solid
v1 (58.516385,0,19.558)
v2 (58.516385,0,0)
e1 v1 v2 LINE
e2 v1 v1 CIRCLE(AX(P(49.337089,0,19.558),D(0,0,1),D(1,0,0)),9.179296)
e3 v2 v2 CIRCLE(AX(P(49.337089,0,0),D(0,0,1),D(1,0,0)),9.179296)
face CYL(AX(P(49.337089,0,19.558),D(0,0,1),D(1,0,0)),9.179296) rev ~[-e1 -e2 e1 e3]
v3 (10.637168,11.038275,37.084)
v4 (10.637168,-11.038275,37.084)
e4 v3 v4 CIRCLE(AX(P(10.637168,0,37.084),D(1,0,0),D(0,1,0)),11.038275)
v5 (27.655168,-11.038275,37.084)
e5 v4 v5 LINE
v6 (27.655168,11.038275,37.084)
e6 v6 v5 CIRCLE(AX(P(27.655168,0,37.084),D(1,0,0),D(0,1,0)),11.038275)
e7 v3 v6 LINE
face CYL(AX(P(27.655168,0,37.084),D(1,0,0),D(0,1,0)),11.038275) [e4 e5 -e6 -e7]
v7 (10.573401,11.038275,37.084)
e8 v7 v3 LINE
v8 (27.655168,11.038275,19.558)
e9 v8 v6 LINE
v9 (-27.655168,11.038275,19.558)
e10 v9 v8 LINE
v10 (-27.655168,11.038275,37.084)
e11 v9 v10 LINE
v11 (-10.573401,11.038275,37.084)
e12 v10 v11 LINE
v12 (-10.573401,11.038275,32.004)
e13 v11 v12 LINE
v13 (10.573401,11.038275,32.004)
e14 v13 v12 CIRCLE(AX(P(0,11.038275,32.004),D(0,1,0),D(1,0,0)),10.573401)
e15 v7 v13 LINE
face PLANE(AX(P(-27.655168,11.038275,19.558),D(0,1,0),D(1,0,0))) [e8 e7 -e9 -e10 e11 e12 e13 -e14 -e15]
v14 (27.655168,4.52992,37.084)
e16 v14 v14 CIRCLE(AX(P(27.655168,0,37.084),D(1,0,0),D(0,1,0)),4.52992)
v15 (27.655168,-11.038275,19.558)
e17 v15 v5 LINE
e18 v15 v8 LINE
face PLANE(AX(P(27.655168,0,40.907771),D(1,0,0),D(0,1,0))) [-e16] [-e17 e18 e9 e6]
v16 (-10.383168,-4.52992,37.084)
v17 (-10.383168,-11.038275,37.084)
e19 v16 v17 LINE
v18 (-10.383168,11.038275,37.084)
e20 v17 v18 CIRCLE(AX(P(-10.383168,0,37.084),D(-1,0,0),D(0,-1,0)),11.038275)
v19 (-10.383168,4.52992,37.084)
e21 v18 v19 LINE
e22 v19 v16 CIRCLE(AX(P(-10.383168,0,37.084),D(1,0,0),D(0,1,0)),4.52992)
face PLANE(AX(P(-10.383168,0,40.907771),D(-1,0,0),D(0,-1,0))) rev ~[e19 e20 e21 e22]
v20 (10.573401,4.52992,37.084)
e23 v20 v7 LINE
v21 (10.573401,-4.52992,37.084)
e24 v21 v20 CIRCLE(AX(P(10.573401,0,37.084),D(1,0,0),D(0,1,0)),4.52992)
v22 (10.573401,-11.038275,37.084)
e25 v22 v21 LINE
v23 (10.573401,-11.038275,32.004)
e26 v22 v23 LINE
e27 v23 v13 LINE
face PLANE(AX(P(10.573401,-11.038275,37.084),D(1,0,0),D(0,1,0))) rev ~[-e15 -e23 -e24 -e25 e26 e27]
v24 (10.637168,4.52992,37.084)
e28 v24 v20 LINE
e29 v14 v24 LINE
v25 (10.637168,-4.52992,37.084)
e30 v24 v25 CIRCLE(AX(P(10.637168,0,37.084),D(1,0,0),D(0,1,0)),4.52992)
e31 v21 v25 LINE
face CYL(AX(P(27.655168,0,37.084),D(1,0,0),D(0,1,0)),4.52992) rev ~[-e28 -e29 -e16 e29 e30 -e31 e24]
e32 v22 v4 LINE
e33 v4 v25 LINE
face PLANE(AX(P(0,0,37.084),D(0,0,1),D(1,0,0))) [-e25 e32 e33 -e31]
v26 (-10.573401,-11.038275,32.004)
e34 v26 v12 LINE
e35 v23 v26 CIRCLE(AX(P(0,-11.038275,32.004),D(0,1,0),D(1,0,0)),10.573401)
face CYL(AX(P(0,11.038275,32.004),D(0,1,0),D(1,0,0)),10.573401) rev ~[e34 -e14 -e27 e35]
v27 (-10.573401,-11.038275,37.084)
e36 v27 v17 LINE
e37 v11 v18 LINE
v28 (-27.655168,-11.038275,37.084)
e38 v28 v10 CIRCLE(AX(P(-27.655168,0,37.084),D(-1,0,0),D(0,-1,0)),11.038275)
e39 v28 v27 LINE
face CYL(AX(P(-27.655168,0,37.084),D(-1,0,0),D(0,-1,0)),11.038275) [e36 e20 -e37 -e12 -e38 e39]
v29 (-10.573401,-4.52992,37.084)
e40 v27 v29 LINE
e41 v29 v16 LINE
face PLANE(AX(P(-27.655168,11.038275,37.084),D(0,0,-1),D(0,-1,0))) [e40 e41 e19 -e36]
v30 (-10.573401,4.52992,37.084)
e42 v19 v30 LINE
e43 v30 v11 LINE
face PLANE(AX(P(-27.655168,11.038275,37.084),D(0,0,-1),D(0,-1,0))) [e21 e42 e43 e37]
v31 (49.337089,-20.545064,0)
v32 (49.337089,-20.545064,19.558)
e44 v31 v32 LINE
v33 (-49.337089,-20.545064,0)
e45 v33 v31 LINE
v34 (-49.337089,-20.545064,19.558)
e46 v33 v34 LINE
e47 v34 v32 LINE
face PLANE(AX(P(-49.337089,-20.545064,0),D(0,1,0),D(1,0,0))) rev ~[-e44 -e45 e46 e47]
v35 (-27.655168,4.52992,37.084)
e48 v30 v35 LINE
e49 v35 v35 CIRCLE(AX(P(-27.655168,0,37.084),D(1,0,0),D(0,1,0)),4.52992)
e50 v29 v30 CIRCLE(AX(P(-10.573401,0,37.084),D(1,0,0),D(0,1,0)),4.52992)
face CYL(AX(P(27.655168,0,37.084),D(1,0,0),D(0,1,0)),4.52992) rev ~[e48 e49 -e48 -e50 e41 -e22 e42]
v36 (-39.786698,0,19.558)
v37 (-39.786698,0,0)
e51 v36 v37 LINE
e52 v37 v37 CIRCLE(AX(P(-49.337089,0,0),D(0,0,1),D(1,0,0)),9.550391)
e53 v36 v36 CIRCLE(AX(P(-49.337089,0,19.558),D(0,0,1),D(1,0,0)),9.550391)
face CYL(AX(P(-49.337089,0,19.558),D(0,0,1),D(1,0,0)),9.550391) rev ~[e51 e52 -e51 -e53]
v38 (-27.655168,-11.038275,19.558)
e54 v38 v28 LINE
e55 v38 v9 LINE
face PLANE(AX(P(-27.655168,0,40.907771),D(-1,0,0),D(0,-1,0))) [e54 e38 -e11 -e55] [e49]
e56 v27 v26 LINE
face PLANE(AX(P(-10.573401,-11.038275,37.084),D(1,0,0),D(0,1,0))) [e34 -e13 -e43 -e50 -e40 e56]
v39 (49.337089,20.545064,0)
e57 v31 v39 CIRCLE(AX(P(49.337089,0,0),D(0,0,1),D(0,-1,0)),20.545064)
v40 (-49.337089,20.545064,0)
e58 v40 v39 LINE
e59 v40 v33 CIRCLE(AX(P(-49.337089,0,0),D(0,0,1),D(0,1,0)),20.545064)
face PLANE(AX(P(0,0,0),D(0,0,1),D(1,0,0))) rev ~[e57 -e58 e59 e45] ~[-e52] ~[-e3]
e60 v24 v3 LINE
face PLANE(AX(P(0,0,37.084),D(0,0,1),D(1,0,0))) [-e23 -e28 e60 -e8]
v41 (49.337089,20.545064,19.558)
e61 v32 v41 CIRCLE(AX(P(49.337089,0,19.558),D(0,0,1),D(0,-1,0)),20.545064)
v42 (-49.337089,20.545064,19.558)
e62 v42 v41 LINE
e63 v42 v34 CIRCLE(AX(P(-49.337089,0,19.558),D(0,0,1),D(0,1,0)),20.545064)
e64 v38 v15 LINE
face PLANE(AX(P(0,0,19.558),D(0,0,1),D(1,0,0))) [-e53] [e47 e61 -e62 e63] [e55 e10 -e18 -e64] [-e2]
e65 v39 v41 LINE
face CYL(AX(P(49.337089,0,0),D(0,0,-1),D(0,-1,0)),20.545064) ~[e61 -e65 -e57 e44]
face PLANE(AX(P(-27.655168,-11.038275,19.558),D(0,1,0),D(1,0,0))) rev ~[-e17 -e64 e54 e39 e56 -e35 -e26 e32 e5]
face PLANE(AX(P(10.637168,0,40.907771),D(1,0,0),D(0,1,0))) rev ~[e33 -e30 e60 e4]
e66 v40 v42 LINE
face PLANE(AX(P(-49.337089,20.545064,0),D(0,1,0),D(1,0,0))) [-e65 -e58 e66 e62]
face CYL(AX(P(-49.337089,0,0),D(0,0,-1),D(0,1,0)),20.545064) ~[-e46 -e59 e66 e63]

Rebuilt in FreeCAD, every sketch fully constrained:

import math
import FreeCAD as App
import Part
import Sketcher
Q = App.Units.Quantity


def add_polygon(sketch, points):
    """Adds a closed chain of lines whose ends are joined by coincident constraints."""
    first, n = sketch.GeometryCount, len(points)
    for a, b in zip(points, points[1:] + points[:1]):
        sketch.addGeometry(Part.LineSegment(App.Vector(*a, 0), App.Vector(*b, 0)), False)
    for i in range(n):
        sketch.addConstraint(Sketcher.Constraint("Coincident", first + i, 2, first + (i + 1) % n, 1))

doc = App.newDocument("Part")
body = doc.addObject("PartDesign::Body", "Body")

# Sketch on XY plane
sketch1 = doc.addObject("Sketcher::SketchObject", "Sketch")
body.addObject(sketch1)
sketch1.AttachmentSupport = (doc.XY_Plane, [""])
sketch1.MapMode = "FlatFace"
sketch1.addGeometry([
    Part.LineSegment(App.Vector(49.337089, 20.545064, 0), App.Vector(-49.337089, 20.545064, 0)),
    Part.ArcOfCircle(Part.Circle(App.Vector(-49.337089, 0, 0), App.Vector(0, 0, 1), 20.545064), math.radians(90), math.radians(270)),
    Part.LineSegment(App.Vector(-49.337089, -20.545064, 0), App.Vector(49.337089, -20.545064, 0)),
    Part.ArcOfCircle(Part.Circle(App.Vector(49.337089, 0, 0), App.Vector(0, 0, 1), 20.545064), math.radians(-90), math.radians(90)),
], False)
sketch1.addConstraint([
    Sketcher.Constraint("Tangent", 0, 2, 1, 1),
    Sketcher.Constraint("Tangent", 1, 2, 2, 1),
    Sketcher.Constraint("Tangent", 2, 2, 3, 1),
    Sketcher.Constraint("Tangent", 3, 2, 0, 1),
    Sketcher.Constraint("Horizontal", 0),
    Sketcher.Constraint("Horizontal", 2),
    Sketcher.Constraint("Symmetric", 1, 3, 3, 3, -1, 1),
    Sketcher.Constraint("Radius", 1, Q("20.545064 mm")),
    Sketcher.Constraint("DistanceX", 0, 2, 0, 1, Q("98.674178 mm")),
])
pad1 = doc.addObject("PartDesign::Pad", "Pad")
body.addObject(pad1)
pad1.Profile = sketch1
pad1.Length = Q("0.77 in")

# Sketch on XY plane
sketch2 = doc.addObject("Sketcher::SketchObject", "Sketch001")
body.addObject(sketch2)
sketch2.AttachmentSupport = (doc.XY_Plane, [""])
sketch2.MapMode = "FlatFace"
sketch2.AttachmentOffset = App.Placement(App.Vector(0, 0, 0.77 * 25.4), App.Rotation())
sketch2.addGeometry([
    Part.Circle(App.Vector(49.337089, 0, 0), App.Vector(0, 0, 1), 9.179296),
    Part.Circle(App.Vector(-49.337089, 0, 0), App.Vector(0, 0, 1), 9.550391),
], False)
sketch2.addConstraint([
    Sketcher.Constraint("Symmetric", 0, 3, 1, 3, -1, 1),
    Sketcher.Constraint("PointOnObject", 0, 3, -1),
    Sketcher.Constraint("Diameter", 0, Q("18.358592 mm")),
    Sketcher.Constraint("Diameter", 1, Q("19.100782 mm")),
    Sketcher.Constraint("DistanceX", -1, 1, 0, 3, Q("49.337089 mm")),
])
pocket1 = doc.addObject("PartDesign::Pocket", "Pocket")
body.addObject(pocket1)
pocket1.Profile = sketch2
pocket1.Length = Q("1.51 in")

# Sketch on XY plane
sketch3 = doc.addObject("Sketcher::SketchObject", "Sketch002")
body.addObject(sketch3)
sketch3.AttachmentSupport = (doc.XY_Plane, [""])
sketch3.MapMode = "FlatFace"
sketch3.AttachmentOffset = App.Placement(App.Vector(0, 0, 0.77 * 25.4), App.Rotation())
add_polygon(sketch3, [(-27.655168, 11.038275), (-27.655168, -11.038275), (27.655168, -11.038275), (27.655168, 11.038275)])  # lines 0-3
sketch3.addConstraint([
    Sketcher.Constraint("Vertical", 0),
    Sketcher.Constraint("Horizontal", 1),
    Sketcher.Constraint("Vertical", 2),
    Sketcher.Constraint("Horizontal", 3),
    Sketcher.Constraint("Symmetric", 0, 2, 2, 2, -1, 1),
    Sketcher.Constraint("DistanceY", 0, 2, 0, 1, Q("22.076551 mm")),
    Sketcher.Constraint("DistanceX", 1, 1, 1, 2, Q("55.310335 mm")),
])
pad2 = doc.addObject("PartDesign::Pad", "Pad001")
body.addObject(pad2)
pad2.Profile = sketch3
pad2.Length = Q("0.69 in")

# Sketch on XY plane
sketch4 = doc.addObject("Sketcher::SketchObject", "Sketch003")
body.addObject(sketch4)
sketch4.AttachmentSupport = (doc.XY_Plane, [""])
sketch4.MapMode = "FlatFace"
sketch4.AttachmentOffset = App.Placement(App.Vector(0, 0, 1.46 * 25.4), App.Rotation())
add_polygon(sketch4, [(-10.573401, 11.038275), (-10.573401, -11.038275), (10.573401, -11.038275), (10.573401, 11.038275)])  # lines 0-3
sketch4.addConstraint([
    Sketcher.Constraint("Vertical", 0),
    Sketcher.Constraint("Horizontal", 1),
    Sketcher.Constraint("Vertical", 2),
    Sketcher.Constraint("Horizontal", 3),
    Sketcher.Constraint("Symmetric", 0, 2, 2, 2, -1, 1),
    Sketcher.Constraint("DistanceY", 0, 2, 0, 1, Q("22.076551 mm")),
    Sketcher.Constraint("DistanceX", 0, 2, -1, 1, Q("10.573401 mm")),
])
pocket2 = doc.addObject("PartDesign::Pocket", "Pocket001")
body.addObject(pocket2)
pocket2.Profile = sketch4
pocket2.Length = Q("0.2 in")

# Sketch on XZ plane
sketch5 = doc.addObject("Sketcher::SketchObject", "Sketch004")
body.addObject(sketch5)
sketch5.AttachmentSupport = (doc.XZ_Plane, [""])
sketch5.MapMode = "FlatFace"
sketch5.AttachmentOffset = App.Placement(App.Vector(0, 0, -11.038275), App.Rotation())
sketch5.addGeometry([
    Part.LineSegment(App.Vector(-10.573401, 32.004, 0), App.Vector(10.573401, 32.004, 0)),
    Part.ArcOfCircle(Part.Circle(App.Vector(0, 32.004, 0), App.Vector(0, 0, 1), 10.573401), math.radians(180), math.radians(360)),
], False)
sketch5.addConstraint([
    Sketcher.Constraint("Coincident", 0, 1, 1, 1),
    Sketcher.Constraint("Coincident", 1, 2, 0, 2),
    Sketcher.Constraint("Horizontal", 0),
    Sketcher.Constraint("PointOnObject", 1, 3, -2),
    Sketcher.Constraint("Horizontal", 1, 3, 0, 1),
    Sketcher.Constraint("DistanceY", -1, 1, 1, 3, Q("1.26 in")),
    Sketcher.Constraint("Radius", 1, Q("10.573401 mm")),
])
pocket3 = doc.addObject("PartDesign::Pocket", "Pocket002")
body.addObject(pocket3)
pocket3.Profile = sketch5
pocket3.Length = Q("6.29 in")
pocket3.Reversed = True

# Sketch on YZ plane
sketch6 = doc.addObject("Sketcher::SketchObject", "Sketch005")
body.addObject(sketch6)
sketch6.AttachmentSupport = (doc.YZ_Plane, [""])
sketch6.MapMode = "FlatFace"
sketch6.AttachmentOffset = App.Placement(App.Vector(0, 0, 27.655168), App.Rotation())
sketch6.addGeometry([
    Part.LineSegment(App.Vector(-11.038275, 37.084, 0), App.Vector(11.038275, 37.084, 0)),
    Part.ArcOfCircle(Part.Circle(App.Vector(0, 37.084, 0), App.Vector(0, 0, 1), 11.038275), math.radians(0), math.radians(180)),
], False)
sketch6.addConstraint([
    Sketcher.Constraint("Coincident", 0, 1, 1, 2),
    Sketcher.Constraint("Coincident", 1, 1, 0, 2),
    Sketcher.Constraint("Horizontal", 0),
    Sketcher.Constraint("PointOnObject", 1, 3, -2),
    Sketcher.Constraint("Horizontal", 1, 3, 0, 1),
    Sketcher.Constraint("DistanceY", -1, 1, 1, 3, Q("1.46 in")),
    Sketcher.Constraint("Radius", 1, Q("11.038275 mm")),
])
pad3 = doc.addObject("PartDesign::Pad", "Pad002")
body.addObject(pad3)
pad3.Profile = sketch6
pad3.Length = Q("0.67 in")
pad3.Reversed = True

# Sketch on YZ plane
sketch7 = doc.addObject("Sketcher::SketchObject", "Sketch006")
body.addObject(sketch7)
sketch7.AttachmentSupport = (doc.YZ_Plane, [""])
sketch7.MapMode = "FlatFace"
sketch7.AttachmentOffset = App.Placement(App.Vector(0, 0, -27.655168), App.Rotation())
sketch7.addGeometry([
    Part.LineSegment(App.Vector(11.038275, 37.084, 0), App.Vector(-11.038275, 37.084, 0)),
    Part.ArcOfCircle(Part.Circle(App.Vector(0, 37.084, 0), App.Vector(0, 0, 1), 11.038275), math.radians(0), math.radians(180)),
], False)
sketch7.addConstraint([
    Sketcher.Constraint("Coincident", 0, 1, 1, 1),
    Sketcher.Constraint("Coincident", 1, 2, 0, 2),
    Sketcher.Constraint("Horizontal", 0),
    Sketcher.Constraint("PointOnObject", 1, 3, -2),
    Sketcher.Constraint("Horizontal", 1, 3, 0, 1),
    Sketcher.Constraint("DistanceY", -1, 1, 1, 3, Q("1.46 in")),
    Sketcher.Constraint("Radius", 1, Q("11.038275 mm")),
])
pad4 = doc.addObject("PartDesign::Pad", "Pad003")
body.addObject(pad4)
pad4.Profile = sketch7
pad4.Length = Q("0.68 in")

# Sketch on YZ plane
sketch8 = doc.addObject("Sketcher::SketchObject", "Sketch007")
body.addObject(sketch8)
sketch8.AttachmentSupport = (doc.YZ_Plane, [""])
sketch8.MapMode = "FlatFace"
sketch8.AttachmentOffset = App.Placement(App.Vector(0, 0, 27.655168), App.Rotation())
sketch8.addGeometry(Part.Circle(App.Vector(0, 37.084, 0), App.Vector(0, 0, 1), 4.52992), False)
sketch8.addConstraint([
    Sketcher.Constraint("PointOnObject", 0, 3, -2),
    Sketcher.Constraint("DistanceY", -1, 1, 0, 3, Q("1.46 in")),
    Sketcher.Constraint("Diameter", 0, Q("9.059839 mm")),
])
pocket4 = doc.addObject("PartDesign::Pocket", "Pocket003")
body.addObject(pocket4)
pocket4.Profile = sketch8
pocket4.Length = Q("4.68 in")

doc.recompute()
